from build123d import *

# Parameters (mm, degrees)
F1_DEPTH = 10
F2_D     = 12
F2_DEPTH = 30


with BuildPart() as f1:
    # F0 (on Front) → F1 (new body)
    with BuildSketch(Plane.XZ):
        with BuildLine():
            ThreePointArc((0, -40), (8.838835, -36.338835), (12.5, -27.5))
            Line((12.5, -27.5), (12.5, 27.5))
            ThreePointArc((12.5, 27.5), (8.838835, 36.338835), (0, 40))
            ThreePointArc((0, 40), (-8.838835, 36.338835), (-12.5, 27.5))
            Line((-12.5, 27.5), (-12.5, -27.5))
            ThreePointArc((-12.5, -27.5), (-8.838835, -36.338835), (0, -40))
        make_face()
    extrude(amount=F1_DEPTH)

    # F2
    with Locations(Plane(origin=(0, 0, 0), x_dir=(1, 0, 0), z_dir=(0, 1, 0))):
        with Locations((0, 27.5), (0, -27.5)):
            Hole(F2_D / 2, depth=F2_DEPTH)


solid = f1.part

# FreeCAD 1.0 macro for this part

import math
import FreeCAD as App
import Part
import Sketcher

doc = App.newDocument("Part")
body = doc.addObject("PartDesign::Body", "Body")

sketch1 = body.newObject("Sketcher::SketchObject", "Sketch")
sketch1.AttachmentSupport = (doc.getObject("XZ_Plane"), [""])
sketch1.MapMode = "FlatFace"
sketch1.addGeometry([
    Part.ArcOfCircle(Part.Circle(App.Vector(0.000001, -27.500001, 0), App.Vector(0, 0, 1), 12.499999), math.radians(-90.000004), math.radians(0.000004)),
    Part.LineSegment(App.Vector(12.5, -27.5, 0), App.Vector(12.5, 27.5, 0)),
    Part.ArcOfCircle(Part.Circle(App.Vector(0.000001, 27.500001, 0), App.Vector(0, 0, 1), 12.499999), math.radians(-0.000004), math.radians(90.000004)),
    Part.ArcOfCircle(Part.Circle(App.Vector(-0.000001, 27.500001, 0), App.Vector(0, 0, 1), 12.499999), math.radians(89.999996), math.radians(180.000004)),
    Part.LineSegment(App.Vector(-12.5, 27.5, 0), App.Vector(-12.5, -27.5, 0)),
    Part.ArcOfCircle(Part.Circle(App.Vector(-0.000001, -27.500001, 0), App.Vector(0, 0, 1), 12.499999), math.radians(179.999996), math.radians(270.000004)),
], False)
sketch1.addConstraint([
    Sketcher.Constraint("Tangent", 0, 2, 1, 1),
    Sketcher.Constraint("Tangent", 1, 2, 2, 1),
    Sketcher.Constraint("Tangent", 2, 2, 3, 1),
    Sketcher.Constraint("Tangent", 3, 2, 4, 1),
    Sketcher.Constraint("Tangent", 4, 2, 5, 1),
    Sketcher.Constraint("Tangent", 5, 2, 0, 1),
    Sketcher.Constraint("Vertical", 1),
    Sketcher.Constraint("Vertical", 4),
    Sketcher.Constraint("Equal", 0, 2),
    Sketcher.Constraint("Equal", 2, 3),
    Sketcher.Constraint("Symmetric", 0, 3, 2, 3, -1, 1),
    Sketcher.Constraint("PointOnObject", 2, 2, -2),
    Sketcher.Constraint("PointOnObject", 5, 2, -2),
    Sketcher.Constraint("Radius", 0, 12.499999),
    Sketcher.Constraint("DistanceY", 1, 1, 1, 2, 55.0),
])
pad1 = body.newObject("PartDesign::Pad", "Pad")
pad1.Profile = sketch1
pad1.Length = 10

sketch2 = body.newObject("Sketcher::SketchObject", "Sketch001")
sketch2.AttachmentSupport = (doc.getObject("XZ_Plane"), [""])
sketch2.MapMode = "FlatFace"
sketch2.addGeometry([
    Part.Circle(App.Vector(0, -27.5, 0), App.Vector(0, 0, 1), 6),
    Part.Circle(App.Vector(0, 27.5, 0), App.Vector(0, 0, 1), 6),
], False)
sketch2.addConstraint([
    Sketcher.Constraint("Equal", 0, 1),
    Sketcher.Constraint("Symmetric", 0, 3, 1, 3, -1, 1),
    Sketcher.Constraint("PointOnObject", 0, 3, -2),
    Sketcher.Constraint("Diameter", 0, 12.0),
    Sketcher.Constraint("DistanceY", 0, 3, 1, 3, 55.0),
])
doc.recompute()
hole = body.newObject("PartDesign::Hole", "Hole")
hole.Profile = sketch2
hole.ThreadType = "None"
hole.Diameter = 12
hole.DepthType = "Dimension"
hole.Depth = 30
hole.DrillPoint = "Flat"
hole.Reversed = True

doc.recompute()
